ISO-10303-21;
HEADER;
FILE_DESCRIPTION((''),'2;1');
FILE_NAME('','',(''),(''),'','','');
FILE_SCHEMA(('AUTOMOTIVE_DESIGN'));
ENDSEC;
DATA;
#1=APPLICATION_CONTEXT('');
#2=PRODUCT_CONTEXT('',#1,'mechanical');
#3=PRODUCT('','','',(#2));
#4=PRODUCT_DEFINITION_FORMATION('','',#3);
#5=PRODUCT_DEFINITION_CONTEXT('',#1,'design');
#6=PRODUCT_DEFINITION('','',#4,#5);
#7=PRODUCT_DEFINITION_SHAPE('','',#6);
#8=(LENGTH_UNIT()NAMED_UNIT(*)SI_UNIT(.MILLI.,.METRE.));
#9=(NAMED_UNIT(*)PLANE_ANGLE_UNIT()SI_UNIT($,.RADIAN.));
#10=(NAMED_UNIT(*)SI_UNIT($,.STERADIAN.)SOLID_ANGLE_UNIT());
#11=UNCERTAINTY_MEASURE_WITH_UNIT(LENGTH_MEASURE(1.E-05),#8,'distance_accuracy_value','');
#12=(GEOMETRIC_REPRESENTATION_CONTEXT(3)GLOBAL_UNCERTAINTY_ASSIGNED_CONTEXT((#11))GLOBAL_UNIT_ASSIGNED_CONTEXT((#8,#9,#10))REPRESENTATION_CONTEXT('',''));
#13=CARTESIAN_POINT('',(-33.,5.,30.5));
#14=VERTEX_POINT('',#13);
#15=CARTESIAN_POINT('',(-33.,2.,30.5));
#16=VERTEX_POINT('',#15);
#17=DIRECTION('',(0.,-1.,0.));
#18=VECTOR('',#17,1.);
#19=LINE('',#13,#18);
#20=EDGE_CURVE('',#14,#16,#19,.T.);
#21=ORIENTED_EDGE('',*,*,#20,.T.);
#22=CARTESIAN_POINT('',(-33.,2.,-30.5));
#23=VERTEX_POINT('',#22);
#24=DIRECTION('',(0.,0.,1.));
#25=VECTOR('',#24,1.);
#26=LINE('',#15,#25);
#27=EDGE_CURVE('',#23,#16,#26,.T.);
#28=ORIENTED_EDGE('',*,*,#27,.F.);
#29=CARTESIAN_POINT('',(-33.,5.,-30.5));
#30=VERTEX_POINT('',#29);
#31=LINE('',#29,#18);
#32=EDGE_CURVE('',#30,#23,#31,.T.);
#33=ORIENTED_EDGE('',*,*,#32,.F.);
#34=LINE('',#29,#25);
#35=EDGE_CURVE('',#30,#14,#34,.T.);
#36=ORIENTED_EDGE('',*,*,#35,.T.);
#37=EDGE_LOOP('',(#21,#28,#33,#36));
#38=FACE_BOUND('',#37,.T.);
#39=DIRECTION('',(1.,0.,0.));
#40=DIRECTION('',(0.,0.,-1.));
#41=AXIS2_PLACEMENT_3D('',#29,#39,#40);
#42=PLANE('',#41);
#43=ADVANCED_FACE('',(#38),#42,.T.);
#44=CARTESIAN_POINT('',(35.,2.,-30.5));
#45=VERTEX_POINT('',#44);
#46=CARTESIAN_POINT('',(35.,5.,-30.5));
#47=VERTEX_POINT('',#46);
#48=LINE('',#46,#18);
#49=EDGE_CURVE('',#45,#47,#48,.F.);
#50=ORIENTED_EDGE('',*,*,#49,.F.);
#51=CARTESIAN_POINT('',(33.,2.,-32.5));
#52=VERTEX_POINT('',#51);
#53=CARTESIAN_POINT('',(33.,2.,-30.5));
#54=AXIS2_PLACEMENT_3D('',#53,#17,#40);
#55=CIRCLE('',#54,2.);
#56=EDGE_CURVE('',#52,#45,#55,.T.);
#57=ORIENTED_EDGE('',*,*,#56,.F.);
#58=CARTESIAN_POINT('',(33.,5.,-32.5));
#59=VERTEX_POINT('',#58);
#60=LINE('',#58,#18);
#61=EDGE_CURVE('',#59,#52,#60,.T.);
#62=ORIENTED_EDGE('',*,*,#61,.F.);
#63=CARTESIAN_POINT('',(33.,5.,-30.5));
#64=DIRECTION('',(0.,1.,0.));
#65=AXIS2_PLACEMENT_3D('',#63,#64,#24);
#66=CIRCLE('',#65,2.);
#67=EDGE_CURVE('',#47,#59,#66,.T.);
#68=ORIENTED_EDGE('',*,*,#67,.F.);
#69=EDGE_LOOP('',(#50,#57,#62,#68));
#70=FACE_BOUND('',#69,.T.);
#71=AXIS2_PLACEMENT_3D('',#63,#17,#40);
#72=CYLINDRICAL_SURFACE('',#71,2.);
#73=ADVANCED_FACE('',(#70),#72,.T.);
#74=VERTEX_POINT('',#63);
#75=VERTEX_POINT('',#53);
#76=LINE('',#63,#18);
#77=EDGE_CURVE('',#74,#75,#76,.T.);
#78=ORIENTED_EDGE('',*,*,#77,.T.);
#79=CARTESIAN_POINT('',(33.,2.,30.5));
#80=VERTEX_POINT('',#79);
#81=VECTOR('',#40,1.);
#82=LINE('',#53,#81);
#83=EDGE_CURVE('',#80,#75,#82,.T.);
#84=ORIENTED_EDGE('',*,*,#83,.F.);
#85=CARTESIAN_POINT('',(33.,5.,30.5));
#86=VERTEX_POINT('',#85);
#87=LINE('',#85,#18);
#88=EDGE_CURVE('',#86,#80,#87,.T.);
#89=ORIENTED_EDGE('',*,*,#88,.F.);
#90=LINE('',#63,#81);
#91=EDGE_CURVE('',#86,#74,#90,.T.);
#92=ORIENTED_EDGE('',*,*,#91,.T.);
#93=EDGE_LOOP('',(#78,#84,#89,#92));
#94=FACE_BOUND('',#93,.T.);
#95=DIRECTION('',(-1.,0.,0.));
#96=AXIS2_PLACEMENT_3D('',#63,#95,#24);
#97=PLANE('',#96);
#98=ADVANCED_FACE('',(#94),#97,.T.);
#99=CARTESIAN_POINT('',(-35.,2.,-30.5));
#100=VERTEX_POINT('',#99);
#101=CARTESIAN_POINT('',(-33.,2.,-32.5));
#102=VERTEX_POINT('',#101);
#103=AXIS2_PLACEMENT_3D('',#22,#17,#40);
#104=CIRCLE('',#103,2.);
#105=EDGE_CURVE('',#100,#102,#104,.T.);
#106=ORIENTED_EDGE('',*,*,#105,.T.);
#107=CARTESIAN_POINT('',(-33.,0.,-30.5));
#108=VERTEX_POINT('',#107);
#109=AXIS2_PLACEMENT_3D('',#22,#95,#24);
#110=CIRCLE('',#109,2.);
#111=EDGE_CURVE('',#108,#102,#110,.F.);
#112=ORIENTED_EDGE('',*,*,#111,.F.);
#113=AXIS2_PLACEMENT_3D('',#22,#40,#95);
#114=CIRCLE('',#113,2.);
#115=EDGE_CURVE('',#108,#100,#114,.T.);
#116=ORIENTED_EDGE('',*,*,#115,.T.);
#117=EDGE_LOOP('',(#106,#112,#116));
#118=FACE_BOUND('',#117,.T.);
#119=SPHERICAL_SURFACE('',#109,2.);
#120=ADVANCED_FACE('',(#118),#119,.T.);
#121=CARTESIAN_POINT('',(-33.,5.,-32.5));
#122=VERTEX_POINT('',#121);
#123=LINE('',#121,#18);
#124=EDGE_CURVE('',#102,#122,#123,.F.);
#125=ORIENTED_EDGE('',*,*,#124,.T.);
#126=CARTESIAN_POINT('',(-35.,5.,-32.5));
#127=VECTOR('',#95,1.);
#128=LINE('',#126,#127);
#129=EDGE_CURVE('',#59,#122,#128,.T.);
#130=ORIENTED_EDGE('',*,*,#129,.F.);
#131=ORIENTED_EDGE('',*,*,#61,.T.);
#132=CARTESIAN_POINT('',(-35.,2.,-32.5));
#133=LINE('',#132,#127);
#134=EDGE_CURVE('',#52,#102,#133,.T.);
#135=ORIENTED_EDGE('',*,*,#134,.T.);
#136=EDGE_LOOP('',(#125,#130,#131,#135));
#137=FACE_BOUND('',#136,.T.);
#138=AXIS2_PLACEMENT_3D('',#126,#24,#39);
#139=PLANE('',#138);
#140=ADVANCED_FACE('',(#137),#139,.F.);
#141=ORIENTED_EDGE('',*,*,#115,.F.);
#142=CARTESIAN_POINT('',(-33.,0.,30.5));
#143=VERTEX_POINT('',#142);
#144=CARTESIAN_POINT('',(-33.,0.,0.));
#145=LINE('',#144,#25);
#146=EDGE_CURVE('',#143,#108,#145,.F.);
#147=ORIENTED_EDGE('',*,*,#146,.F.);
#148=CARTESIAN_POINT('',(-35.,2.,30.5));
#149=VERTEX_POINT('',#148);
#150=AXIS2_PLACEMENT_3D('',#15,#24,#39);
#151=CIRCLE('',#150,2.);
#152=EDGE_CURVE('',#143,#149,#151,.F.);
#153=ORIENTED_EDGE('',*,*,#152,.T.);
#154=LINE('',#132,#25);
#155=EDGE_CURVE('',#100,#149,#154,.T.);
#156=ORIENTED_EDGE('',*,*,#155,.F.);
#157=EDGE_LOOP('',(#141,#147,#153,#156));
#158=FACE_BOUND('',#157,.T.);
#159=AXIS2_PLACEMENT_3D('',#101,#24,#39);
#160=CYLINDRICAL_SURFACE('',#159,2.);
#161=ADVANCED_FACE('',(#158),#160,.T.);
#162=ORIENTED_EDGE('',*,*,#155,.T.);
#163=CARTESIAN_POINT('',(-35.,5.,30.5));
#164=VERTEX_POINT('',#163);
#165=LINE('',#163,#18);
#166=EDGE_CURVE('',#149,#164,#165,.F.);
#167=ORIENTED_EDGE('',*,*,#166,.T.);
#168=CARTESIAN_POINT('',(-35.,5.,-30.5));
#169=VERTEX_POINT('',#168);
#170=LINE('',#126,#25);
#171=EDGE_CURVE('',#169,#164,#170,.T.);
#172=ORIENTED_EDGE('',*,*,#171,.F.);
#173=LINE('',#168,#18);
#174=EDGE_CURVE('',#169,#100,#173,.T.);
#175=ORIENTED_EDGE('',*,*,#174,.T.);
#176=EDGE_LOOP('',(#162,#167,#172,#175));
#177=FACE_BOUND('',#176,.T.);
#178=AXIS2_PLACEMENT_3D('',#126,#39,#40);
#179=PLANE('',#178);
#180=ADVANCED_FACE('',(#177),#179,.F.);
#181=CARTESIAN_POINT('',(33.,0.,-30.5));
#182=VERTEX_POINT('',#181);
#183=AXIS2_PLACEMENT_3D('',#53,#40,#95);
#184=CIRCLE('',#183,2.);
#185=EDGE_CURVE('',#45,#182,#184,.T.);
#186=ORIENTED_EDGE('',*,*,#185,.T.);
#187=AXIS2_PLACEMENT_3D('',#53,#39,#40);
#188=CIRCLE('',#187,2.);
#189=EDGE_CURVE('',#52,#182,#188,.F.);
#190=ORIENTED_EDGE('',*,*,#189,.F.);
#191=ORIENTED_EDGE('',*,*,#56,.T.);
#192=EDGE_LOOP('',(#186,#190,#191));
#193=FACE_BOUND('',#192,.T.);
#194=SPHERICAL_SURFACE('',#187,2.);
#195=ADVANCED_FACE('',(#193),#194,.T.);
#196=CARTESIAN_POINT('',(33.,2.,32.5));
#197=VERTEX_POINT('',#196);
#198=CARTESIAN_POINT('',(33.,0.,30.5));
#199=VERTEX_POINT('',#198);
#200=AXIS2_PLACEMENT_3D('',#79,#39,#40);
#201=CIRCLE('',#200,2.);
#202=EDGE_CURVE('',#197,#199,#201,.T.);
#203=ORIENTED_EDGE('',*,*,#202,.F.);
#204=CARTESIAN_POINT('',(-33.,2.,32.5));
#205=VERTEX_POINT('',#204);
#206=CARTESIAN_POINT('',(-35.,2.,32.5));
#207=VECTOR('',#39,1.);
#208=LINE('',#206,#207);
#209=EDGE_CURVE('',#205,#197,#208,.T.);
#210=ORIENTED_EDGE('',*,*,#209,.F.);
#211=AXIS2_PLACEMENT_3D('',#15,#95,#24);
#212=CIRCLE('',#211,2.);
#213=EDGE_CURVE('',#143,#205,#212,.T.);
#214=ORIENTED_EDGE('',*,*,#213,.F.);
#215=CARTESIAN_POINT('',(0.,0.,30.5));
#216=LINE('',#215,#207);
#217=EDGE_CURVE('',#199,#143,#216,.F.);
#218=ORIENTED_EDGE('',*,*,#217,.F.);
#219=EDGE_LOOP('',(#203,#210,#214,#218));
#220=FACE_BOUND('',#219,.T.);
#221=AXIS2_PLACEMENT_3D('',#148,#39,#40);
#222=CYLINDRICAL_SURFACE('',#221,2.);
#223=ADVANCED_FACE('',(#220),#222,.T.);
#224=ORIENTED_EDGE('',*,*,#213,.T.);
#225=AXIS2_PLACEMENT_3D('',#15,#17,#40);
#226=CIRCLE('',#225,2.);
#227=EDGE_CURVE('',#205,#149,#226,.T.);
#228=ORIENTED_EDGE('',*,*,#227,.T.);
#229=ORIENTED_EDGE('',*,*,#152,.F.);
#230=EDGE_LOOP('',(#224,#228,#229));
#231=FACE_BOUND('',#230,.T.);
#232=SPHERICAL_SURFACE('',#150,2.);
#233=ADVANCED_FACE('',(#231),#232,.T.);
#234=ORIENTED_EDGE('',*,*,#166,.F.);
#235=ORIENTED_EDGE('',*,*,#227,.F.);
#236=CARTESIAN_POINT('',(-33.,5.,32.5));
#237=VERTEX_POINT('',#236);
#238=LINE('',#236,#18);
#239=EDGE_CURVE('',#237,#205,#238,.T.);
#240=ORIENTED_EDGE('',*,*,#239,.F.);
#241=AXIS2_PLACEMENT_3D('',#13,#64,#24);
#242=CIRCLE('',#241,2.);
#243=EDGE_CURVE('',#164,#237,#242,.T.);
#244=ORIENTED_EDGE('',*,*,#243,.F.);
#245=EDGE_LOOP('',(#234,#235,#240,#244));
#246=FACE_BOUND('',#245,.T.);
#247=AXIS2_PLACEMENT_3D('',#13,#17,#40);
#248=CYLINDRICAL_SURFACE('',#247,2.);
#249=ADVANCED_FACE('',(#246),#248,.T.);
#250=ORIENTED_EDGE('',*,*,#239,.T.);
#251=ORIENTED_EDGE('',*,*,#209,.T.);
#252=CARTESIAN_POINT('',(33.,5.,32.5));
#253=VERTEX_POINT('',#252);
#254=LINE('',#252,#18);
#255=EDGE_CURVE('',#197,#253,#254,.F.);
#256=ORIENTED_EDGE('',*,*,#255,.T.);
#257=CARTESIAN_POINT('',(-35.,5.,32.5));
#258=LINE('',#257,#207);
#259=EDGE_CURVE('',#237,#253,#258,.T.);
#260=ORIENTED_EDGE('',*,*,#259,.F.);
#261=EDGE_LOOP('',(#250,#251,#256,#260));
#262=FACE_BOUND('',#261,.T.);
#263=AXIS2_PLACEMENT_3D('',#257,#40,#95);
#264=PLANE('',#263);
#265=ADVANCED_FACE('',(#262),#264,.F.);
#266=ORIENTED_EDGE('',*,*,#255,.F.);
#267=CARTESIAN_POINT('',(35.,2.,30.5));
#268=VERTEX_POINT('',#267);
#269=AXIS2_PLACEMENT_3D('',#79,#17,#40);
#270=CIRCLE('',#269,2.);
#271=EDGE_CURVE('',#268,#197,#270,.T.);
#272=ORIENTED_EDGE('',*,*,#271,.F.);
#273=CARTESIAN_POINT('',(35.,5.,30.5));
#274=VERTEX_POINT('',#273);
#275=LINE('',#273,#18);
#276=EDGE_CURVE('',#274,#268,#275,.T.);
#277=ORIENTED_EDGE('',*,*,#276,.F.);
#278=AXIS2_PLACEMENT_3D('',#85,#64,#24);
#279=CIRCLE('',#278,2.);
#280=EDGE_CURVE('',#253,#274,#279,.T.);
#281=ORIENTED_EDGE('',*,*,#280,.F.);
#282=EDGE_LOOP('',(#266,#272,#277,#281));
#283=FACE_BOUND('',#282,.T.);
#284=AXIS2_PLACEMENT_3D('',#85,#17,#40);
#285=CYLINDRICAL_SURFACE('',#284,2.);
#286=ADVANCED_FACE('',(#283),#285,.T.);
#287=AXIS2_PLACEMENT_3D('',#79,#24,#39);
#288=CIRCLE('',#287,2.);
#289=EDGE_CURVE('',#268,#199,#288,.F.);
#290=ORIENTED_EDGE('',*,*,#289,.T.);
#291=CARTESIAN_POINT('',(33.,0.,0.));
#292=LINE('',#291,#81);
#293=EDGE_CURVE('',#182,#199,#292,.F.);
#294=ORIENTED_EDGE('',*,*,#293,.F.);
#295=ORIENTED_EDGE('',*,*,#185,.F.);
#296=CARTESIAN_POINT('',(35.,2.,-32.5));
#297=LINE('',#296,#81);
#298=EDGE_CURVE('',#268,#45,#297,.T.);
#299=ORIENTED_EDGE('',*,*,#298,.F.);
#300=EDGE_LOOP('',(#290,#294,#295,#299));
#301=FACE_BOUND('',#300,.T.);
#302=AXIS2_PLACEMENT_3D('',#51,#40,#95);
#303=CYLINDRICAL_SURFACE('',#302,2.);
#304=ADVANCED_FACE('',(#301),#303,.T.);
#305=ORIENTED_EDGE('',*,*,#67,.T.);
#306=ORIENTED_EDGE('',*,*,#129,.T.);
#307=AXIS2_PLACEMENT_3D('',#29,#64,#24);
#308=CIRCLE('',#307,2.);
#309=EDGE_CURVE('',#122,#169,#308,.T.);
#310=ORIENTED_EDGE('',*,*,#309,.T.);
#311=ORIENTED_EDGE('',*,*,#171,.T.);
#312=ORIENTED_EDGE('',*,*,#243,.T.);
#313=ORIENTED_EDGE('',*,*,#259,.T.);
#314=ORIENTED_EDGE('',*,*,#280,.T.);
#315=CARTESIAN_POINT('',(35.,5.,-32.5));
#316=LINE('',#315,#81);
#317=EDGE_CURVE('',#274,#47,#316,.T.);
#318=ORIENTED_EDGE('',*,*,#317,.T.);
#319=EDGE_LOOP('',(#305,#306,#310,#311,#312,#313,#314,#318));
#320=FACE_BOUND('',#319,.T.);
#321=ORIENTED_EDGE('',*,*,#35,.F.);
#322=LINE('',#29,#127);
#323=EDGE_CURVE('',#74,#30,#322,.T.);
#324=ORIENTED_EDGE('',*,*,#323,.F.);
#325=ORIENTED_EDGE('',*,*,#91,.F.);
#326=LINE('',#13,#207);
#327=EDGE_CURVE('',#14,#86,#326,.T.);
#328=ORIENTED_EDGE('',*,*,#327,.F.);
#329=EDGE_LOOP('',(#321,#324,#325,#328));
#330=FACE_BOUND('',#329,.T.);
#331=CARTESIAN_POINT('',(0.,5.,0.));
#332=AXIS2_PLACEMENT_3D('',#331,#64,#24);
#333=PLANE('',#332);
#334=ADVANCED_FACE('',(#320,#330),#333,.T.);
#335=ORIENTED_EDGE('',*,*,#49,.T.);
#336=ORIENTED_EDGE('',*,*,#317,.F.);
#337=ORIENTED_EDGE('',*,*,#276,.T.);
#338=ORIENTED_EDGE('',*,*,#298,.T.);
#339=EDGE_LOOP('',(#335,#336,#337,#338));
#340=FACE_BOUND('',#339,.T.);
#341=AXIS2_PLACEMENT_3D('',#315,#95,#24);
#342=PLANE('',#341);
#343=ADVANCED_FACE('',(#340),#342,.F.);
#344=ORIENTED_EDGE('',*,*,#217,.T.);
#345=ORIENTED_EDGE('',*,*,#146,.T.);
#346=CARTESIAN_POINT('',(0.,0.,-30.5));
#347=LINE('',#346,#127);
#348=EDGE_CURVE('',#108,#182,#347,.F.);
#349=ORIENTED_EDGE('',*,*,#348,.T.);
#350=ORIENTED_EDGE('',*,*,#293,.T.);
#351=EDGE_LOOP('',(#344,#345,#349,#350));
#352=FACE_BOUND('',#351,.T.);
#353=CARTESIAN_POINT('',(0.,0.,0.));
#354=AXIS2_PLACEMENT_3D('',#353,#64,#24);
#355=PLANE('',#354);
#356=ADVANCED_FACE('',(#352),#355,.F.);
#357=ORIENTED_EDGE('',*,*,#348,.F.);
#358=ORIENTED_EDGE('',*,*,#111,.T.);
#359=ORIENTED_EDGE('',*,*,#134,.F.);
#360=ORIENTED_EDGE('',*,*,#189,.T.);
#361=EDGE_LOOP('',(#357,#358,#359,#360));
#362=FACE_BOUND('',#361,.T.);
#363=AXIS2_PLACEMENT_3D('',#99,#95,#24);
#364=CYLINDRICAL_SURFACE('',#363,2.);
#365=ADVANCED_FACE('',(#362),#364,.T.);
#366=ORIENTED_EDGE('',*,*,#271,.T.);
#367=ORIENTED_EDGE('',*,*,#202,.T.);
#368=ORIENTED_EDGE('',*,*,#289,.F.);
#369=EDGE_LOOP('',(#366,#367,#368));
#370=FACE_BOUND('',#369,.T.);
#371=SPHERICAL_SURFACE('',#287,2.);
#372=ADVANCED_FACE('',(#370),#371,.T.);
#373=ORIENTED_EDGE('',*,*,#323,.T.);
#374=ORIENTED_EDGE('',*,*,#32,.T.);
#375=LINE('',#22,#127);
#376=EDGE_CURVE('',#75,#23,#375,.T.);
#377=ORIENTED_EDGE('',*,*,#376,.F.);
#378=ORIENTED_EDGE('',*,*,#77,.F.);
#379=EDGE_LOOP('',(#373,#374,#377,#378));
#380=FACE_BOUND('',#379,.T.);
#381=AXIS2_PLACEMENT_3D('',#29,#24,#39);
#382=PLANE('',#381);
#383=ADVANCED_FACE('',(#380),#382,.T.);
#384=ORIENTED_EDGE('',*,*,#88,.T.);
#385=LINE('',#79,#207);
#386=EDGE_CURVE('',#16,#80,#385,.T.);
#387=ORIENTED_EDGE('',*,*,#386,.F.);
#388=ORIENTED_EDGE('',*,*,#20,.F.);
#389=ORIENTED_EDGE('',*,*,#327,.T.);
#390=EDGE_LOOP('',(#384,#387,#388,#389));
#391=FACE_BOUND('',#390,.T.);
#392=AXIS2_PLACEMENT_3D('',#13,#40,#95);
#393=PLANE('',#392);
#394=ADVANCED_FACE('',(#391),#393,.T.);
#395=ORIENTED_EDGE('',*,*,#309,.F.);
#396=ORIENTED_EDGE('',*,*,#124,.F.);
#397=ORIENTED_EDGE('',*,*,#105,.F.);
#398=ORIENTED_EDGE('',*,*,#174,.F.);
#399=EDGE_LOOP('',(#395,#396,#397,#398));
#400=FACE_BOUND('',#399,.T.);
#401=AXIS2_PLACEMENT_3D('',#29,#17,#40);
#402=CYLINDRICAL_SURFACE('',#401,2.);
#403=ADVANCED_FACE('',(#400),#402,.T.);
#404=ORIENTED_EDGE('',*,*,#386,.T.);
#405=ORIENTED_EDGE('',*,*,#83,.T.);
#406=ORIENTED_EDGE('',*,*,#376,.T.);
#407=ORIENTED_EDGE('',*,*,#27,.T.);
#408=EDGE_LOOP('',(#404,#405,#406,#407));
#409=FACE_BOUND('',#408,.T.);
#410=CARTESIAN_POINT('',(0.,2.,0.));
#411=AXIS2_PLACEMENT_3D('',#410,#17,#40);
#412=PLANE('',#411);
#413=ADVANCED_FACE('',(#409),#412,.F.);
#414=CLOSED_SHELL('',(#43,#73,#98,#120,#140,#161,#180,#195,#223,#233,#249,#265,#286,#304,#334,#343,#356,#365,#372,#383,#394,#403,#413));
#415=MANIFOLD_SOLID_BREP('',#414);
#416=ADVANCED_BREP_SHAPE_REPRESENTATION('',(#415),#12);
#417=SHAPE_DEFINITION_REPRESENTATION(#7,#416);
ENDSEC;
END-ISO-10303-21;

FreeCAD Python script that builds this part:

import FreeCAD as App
import Part
import Sketcher
from FreeCAD import Vector
Q = App.Units.Quantity


def edges_at(feature, points):
    """Names of the edges that pass closest to the given points."""
    edges = feature.Shape.Edges
    near = lambda p: min(range(len(edges)), key=lambda i: edges[i].distToShape(Part.Vertex(*p))[0])
    return sorted({f"Edge{near(p) + 1}" for p in points})

doc = App.newDocument("Part")
body = doc.addObject("PartDesign::Body", "Body")

# Sketch on XZ plane
sketch1 = doc.addObject("Sketcher::SketchObject", "Sketch")
body.addObject(sketch1)
sketch1.AttachmentSupport = (doc.XZ_Plane, [""])
sketch1.MapMode = "FlatFace"
sketch1.addGeometry([
    Part.LineSegment(Vector(-35, -32, 0), Vector(-35, 32, 0)),  # 0
    Part.LineSegment(Vector(-35, 32, 0), Vector(35, 32, 0)),  # 1
    Part.LineSegment(Vector(35, 32, 0), Vector(35, -32, 0)),  # 2
    Part.LineSegment(Vector(35, -32, 0), Vector(-35, -32, 0)),  # 3
    Part.LineSegment(Vector(33, 30, 0), Vector(-33, 30, 0)),  # 4
    Part.LineSegment(Vector(-33, 30, 0), Vector(-33, -30, 0)),  # 5
    Part.LineSegment(Vector(-33, -30, 0), Vector(33, -30, 0)),  # 6
    Part.LineSegment(Vector(33, -30, 0), Vector(33, 30, 0)),  # 7
], False)
sketch1.addConstraint([
    Sketcher.Constraint("Coincident", 0, 2, 1, 1),
    Sketcher.Constraint("Coincident", 1, 2, 2, 1),
    Sketcher.Constraint("Coincident", 2, 2, 3, 1),
    Sketcher.Constraint("Coincident", 3, 2, 0, 1),
    Sketcher.Constraint("Coincident", 4, 2, 5, 1),
    Sketcher.Constraint("Coincident", 5, 2, 6, 1),
    Sketcher.Constraint("Coincident", 6, 2, 7, 1),
    Sketcher.Constraint("Coincident", 7, 2, 4, 1),
    Sketcher.Constraint("Vertical", 0),
    Sketcher.Constraint("Horizontal", 1),
    Sketcher.Constraint("Vertical", 2),
    Sketcher.Constraint("Horizontal", 3),
    Sketcher.Constraint("Horizontal", 4),
    Sketcher.Constraint("Vertical", 5),
    Sketcher.Constraint("Horizontal", 6),
    Sketcher.Constraint("Vertical", 7),
    Sketcher.Constraint("Symmetric", 0, 2, 2, 2, -1, 1),
    Sketcher.Constraint("Symmetric", 4, 2, 6, 2, -1, 1),
    Sketcher.Constraint("DistanceX", 1, 1, 1, 2, Q("70 mm")),
    Sketcher.Constraint("DistanceX", 4, 2, 4, 1, Q("66 mm")),
    Sketcher.Constraint("DistanceY", 0, 1, 0, 2, Q("65 mm")),
    Sketcher.Constraint("DistanceY", 5, 2, 5, 1, Q("61 mm")),
])
pad1 = doc.addObject("PartDesign::Pad", "Pad")
body.addObject(pad1)
pad1.Profile = sketch1
pad1.Length = 5
pad1.Reversed = True

# Sketch on XZ plane
sketch2 = doc.addObject("Sketcher::SketchObject", "Sketch001")
body.addObject(sketch2)
sketch2.AttachmentSupport = (doc.XZ_Plane, [""])
sketch2.MapMode = "FlatFace"
sketch2.addGeometry([
    Part.LineSegment(Vector(-33, -30, 0), Vector(-33, 30, 0)),
    Part.LineSegment(Vector(-33, 30, 0), Vector(33, 30, 0)),
    Part.LineSegment(Vector(33, 30, 0), Vector(33, -30, 0)),
    Part.LineSegment(Vector(33, -30, 0), Vector(-33, -30, 0)),
], False)
sketch2.addConstraint([
    Sketcher.Constraint("Coincident", 0, 2, 1, 1),
    Sketcher.Constraint("Coincident", 1, 2, 2, 1),
    Sketcher.Constraint("Coincident", 2, 2, 3, 1),
    Sketcher.Constraint("Coincident", 3, 2, 0, 1),
    Sketcher.Constraint("Vertical", 0),
    Sketcher.Constraint("Horizontal", 1),
    Sketcher.Constraint("Vertical", 2),
    Sketcher.Constraint("Horizontal", 3),
    Sketcher.Constraint("Symmetric", 0, 2, 2, 2, -1, 1),
    Sketcher.Constraint("DistanceX", 1, 1, 1, 2, Q("66 mm")),
    Sketcher.Constraint("DistanceY", 0, 1, 0, 2, Q("61 mm")),
])
pad2 = doc.addObject("PartDesign::Pad", "Pad001")
body.addObject(pad2)
pad2.Profile = sketch2
pad2.Length = 2
pad2.Reversed = True
doc.recompute()

fillet = doc.addObject("PartDesign::Fillet", "Fillet")
body.addObject(fillet)
fillet.Base = (pad2, edges_at(pad2, [
    (0, 0, 32.5),
    (-35, 0, 0),
    (0, 0, -32.5),
    (35, 0, 0),
    (35, 2.5, 32.5),
    (-35, 2.5, 32.5),
    (-35, 2.5, -32.5),
    (35, 2.5, -32.5),
]))
fillet.Radius = 2

doc.recompute()
